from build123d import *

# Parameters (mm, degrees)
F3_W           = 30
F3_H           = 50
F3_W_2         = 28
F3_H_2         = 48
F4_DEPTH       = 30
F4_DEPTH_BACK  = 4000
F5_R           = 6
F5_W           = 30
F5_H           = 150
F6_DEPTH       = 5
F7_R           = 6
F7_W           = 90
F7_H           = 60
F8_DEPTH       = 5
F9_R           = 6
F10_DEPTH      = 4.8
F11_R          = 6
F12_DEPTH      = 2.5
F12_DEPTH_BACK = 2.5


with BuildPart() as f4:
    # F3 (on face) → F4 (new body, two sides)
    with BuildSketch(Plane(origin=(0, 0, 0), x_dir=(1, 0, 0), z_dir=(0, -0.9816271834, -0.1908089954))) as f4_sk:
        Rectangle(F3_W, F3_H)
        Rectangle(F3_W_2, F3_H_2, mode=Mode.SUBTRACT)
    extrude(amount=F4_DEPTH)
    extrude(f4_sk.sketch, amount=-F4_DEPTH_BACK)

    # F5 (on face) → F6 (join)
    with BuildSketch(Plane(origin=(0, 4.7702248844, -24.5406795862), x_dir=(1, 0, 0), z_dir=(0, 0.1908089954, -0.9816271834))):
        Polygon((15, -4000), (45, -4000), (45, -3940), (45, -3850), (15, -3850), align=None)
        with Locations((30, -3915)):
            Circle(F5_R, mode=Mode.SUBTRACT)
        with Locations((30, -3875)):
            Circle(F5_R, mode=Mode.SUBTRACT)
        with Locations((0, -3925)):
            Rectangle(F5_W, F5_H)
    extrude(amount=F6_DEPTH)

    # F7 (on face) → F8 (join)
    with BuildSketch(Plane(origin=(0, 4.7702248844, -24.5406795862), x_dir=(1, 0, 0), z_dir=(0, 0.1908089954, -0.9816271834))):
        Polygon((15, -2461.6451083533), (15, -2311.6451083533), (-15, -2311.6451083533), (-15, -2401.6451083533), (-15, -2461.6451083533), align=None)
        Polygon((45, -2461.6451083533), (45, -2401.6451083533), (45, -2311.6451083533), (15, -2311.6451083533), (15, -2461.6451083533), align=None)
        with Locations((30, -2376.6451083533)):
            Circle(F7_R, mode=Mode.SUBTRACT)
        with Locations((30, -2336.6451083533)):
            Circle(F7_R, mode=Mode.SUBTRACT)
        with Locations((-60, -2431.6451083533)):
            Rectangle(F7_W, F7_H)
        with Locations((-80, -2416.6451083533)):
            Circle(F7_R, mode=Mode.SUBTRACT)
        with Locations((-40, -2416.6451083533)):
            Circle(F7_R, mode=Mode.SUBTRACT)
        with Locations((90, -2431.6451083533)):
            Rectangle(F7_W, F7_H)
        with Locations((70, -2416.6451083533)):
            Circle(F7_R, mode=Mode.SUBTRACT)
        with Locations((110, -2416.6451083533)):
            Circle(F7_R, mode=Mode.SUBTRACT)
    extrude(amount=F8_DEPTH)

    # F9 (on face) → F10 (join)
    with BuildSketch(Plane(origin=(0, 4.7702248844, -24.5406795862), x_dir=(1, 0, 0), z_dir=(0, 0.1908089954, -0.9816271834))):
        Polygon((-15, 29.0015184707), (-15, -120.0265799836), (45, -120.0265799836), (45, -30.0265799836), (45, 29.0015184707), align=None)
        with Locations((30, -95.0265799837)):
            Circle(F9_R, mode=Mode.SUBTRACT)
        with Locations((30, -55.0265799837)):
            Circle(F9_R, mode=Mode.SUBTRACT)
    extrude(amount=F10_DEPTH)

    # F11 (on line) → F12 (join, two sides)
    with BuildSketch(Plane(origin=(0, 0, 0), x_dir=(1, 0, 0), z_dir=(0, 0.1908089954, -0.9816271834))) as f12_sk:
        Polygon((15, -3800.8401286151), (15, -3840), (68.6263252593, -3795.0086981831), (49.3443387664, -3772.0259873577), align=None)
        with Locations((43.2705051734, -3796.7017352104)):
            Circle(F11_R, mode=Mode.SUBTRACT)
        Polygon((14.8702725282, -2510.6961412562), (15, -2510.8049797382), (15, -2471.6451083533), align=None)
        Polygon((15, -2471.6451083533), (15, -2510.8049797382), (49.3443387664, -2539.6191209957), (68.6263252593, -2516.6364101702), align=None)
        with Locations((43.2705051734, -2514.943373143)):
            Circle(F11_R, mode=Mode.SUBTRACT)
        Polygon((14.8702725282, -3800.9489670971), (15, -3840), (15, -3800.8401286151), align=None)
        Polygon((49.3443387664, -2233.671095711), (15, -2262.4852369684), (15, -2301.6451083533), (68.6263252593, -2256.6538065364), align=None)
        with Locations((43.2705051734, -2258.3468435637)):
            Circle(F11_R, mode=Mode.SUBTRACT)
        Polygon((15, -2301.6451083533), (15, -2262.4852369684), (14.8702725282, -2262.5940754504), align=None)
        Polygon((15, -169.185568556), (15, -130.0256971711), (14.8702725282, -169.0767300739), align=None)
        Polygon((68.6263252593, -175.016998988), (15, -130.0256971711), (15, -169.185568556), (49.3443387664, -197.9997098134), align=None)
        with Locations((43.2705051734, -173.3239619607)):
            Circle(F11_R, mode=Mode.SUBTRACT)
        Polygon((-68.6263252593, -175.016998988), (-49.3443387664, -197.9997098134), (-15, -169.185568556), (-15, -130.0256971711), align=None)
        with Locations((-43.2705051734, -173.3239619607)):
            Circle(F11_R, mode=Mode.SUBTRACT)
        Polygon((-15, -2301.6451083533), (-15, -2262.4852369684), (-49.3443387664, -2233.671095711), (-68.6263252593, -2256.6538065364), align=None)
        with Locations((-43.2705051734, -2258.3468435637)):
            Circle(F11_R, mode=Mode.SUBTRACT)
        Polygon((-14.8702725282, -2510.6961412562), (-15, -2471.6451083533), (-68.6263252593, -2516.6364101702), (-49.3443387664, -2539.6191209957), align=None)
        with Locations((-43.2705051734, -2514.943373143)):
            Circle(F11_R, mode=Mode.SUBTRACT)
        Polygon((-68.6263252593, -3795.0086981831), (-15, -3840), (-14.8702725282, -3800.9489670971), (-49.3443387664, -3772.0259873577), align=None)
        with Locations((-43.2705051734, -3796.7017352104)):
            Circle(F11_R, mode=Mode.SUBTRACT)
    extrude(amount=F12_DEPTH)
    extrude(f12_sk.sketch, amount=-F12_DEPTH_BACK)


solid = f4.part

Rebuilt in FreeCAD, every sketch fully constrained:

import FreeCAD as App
import Part
import Sketcher
from FreeCAD import Vector


def add_polygon(sketch, points):
    """Adds a closed chain of lines whose ends are joined by coincident constraints."""
    first, n = sketch.GeometryCount, len(points)
    for a, b in zip(points, points[1:] + points[:1]):
        sketch.addGeometry(Part.LineSegment(App.Vector(*a, 0), App.Vector(*b, 0)), False)
    for i in range(n):
        sketch.addConstraint(Sketcher.Constraint("Coincident", first + i, 2, first + (i + 1) % n, 1))

doc = App.newDocument("Part")
body = doc.addObject("PartDesign::Body", "Body")

# Sketch on an angled plane
sketch1 = body.newObject("Sketcher::SketchObject", "Sketch")
sketch1.Placement = App.Placement(Vector(0, 0, 0), App.Rotation(Vector(1, 0, 0), Vector(0, -0.190808995, 0.981627183), Vector(0, -0.981627183, -0.190808995), "ZXY"))
add_polygon(sketch1, [(-15, 25), (-15, -25), (15, -25), (15, 25)])  # lines 0-3
add_polygon(sketch1, [(14, -24), (-14, -24), (-14, 24), (14, 24)])  # lines 4-7
sketch1.addConstraint([
    Sketcher.Constraint("Vertical", 0),
    Sketcher.Constraint("Horizontal", 1),
    Sketcher.Constraint("Vertical", 2),
    Sketcher.Constraint("Horizontal", 3),
    Sketcher.Constraint("Horizontal", 4),
    Sketcher.Constraint("Vertical", 5),
    Sketcher.Constraint("Horizontal", 6),
    Sketcher.Constraint("Vertical", 7),
    Sketcher.Constraint("Symmetric", 0, 2, 2, 2, -1, 1),
    Sketcher.Constraint("Symmetric", 4, 2, 6, 2, -1, 1),
    Sketcher.Constraint("DistanceX", 1, 1, 1, 2, 30.0),
    Sketcher.Constraint("DistanceX", 4, 2, 4, 1, 28.0),
    Sketcher.Constraint("DistanceY", 0, 2, 0, 1, 50.0),
    Sketcher.Constraint("DistanceY", 5, 1, 5, 2, 48.0),
])
pad1 = body.newObject("PartDesign::Pad", "Pad")
pad1.Profile = sketch1
pad1.Type = "TwoLengths"
pad1.Length = 30
pad1.Length2 = 4000

# Sketch on an angled plane
sketch2 = body.newObject("Sketcher::SketchObject", "Sketch001")
sketch2.Placement = App.Placement(Vector(0, 4.770225, -24.54068), App.Rotation(Vector(1, 0, 0), Vector(0, -0.981627183, -0.190808995), Vector(0, 0.190808995, -0.981627183), "ZXY"))
add_polygon(sketch2, [(45, -4000), (45, -3850), (-15, -3850), (-15, -4000)])  # lines 0-3
sketch2.addGeometry(Part.Circle(Vector(30, -3915, 0), Vector(0, 0, 1), 6), False)  # 4
sketch2.addGeometry(Part.Circle(Vector(30, -3875, 0), Vector(0, 0, 1), 6), False)  # 5
sketch2.addConstraint([
    Sketcher.Constraint("Vertical", 0),
    Sketcher.Constraint("Horizontal", 1),
    Sketcher.Constraint("Vertical", 2),
    Sketcher.Constraint("Horizontal", 3),
    Sketcher.Constraint("Equal", 4, 5),
    Sketcher.Constraint("Vertical", 4, 3, 5, 3),
    Sketcher.Constraint("Diameter", 4, 12.0),
    Sketcher.Constraint("DistanceX", 1, 2, 1, 1, 60.0),
    Sketcher.Constraint("DistanceY", 0, 1, 0, 2, 150.0),
    Sketcher.Constraint("DistanceX", -1, 1, 4, 3, 30.0),
    Sketcher.Constraint("DistanceX", -1, 1, 0, 2, 45.0),
    Sketcher.Constraint("DistanceY", 4, 3, 5, 3, 40.0),
    Sketcher.Constraint("DistanceY", 5, 3, 0, 2, 25.0),
    Sketcher.Constraint("DistanceY", 4, 3, -1, 1, 3914.999996),
])
pad2 = body.newObject("PartDesign::Pad", "Pad001")
pad2.Profile = sketch2
pad2.Length = 5

# Sketch on an angled plane
sketch3 = body.newObject("Sketcher::SketchObject", "Sketch002")
sketch3.Placement = App.Placement(Vector(0, 4.770225, -24.54068), App.Rotation(Vector(1, 0, 0), Vector(0, -0.981627183, -0.190808995), Vector(0, 0.190808995, -0.981627183), "ZXY"))
add_polygon(sketch3, [(-15, -2312), (-15, -2402), (-105, -2402), (-105, -2462), (135, -2462), (135, -2402), (45, -2402), (45, -2312)])  # lines 0-7
sketch3.addGeometry(Part.Circle(Vector(-80, -2417, 0), Vector(0, 0, 1), 6), False)  # 8
sketch3.addGeometry(Part.Circle(Vector(-40, -2417, 0), Vector(0, 0, 1), 6), False)  # 9
sketch3.addGeometry(Part.Circle(Vector(70, -2417, 0), Vector(0, 0, 1), 6), False)  # 10
sketch3.addGeometry(Part.Circle(Vector(110, -2417, 0), Vector(0, 0, 1), 6), False)  # 11
sketch3.addGeometry(Part.Circle(Vector(30, -2377, 0), Vector(0, 0, 1), 6), False)  # 12
sketch3.addGeometry(Part.Circle(Vector(30, -2337, 0), Vector(0, 0, 1), 6), False)  # 13
sketch3.addConstraint([
    Sketcher.Constraint("Vertical", 0),
    Sketcher.Constraint("Horizontal", 1),
    Sketcher.Constraint("Vertical", 2),
    Sketcher.Constraint("Horizontal", 3),
    Sketcher.Constraint("Vertical", 4),
    Sketcher.Constraint("Horizontal", 5),
    Sketcher.Constraint("Vertical", 6),
    Sketcher.Constraint("Horizontal", 7),
    Sketcher.Constraint("Equal", 8, 9),
    Sketcher.Constraint("Equal", 9, 10),
    Sketcher.Constraint("Equal", 10, 11),
    Sketcher.Constraint("Equal", 11, 12),
    Sketcher.Constraint("Equal", 12, 13),
    Sketcher.Constraint("Horizontal", 8, 3, 9, 3),
    Sketcher.Constraint("Horizontal", 9, 3, 10, 3),
    Sketcher.Constraint("Horizontal", 10, 3, 11, 3),
    Sketcher.Constraint("Horizontal", 1, 2, 4, 2),
    Sketcher.Constraint("Vertical", 12, 3, 13, 3),
    Sketcher.Constraint("Equal", 1, 5),
    Sketcher.Constraint("Equal", 5, 0),
    Sketcher.Constraint("Equal", 7, 2),
    Sketcher.Constraint("Diameter", 8, 12.0),
    Sketcher.Constraint("DistanceX", 1, 2, 1, 1, 90.0),
    Sketcher.Constraint("DistanceX", 3, 1, 3, 2, 240.0),
    Sketcher.Constraint("DistanceX", 8, 3, -1, 1, 80.0),
    Sketcher.Constraint("DistanceX", 9, 3, -1, 1, 40.0),
    Sketcher.Constraint("DistanceX", -1, 1, 10, 3, 70.0),
    Sketcher.Constraint("DistanceX", -1, 1, 11, 3, 110.0),
    Sketcher.Constraint("DistanceX", -1, 1, 12, 3, 30.0),
    Sketcher.Constraint("DistanceX", 0, 2, -1, 1, 15.0),
    Sketcher.Constraint("DistanceY", 10, 3, 12, 3, 40.0),
    Sketcher.Constraint("DistanceY", 12, 3, 13, 3, 40.0),
    Sketcher.Constraint("DistanceY", 9, 3, 0, 2, 15.0),
    Sketcher.Constraint("DistanceY", 8, 3, -1, 1, 2416.645106),
])
pad3 = body.newObject("PartDesign::Pad", "Pad002")
pad3.Profile = sketch3
pad3.Length = 5

# Sketch on an angled plane
sketch4 = body.newObject("Sketcher::SketchObject", "Sketch003")
sketch4.Placement = App.Placement(Vector(0, 4.770225, -24.54068), App.Rotation(Vector(1, 0, 0), Vector(0, -0.981627183, -0.190808995), Vector(0, 0.190808995, -0.981627183), "ZXY"))
add_polygon(sketch4, [(-15, 29), (-15, -120), (45, -120), (45, 29)])  # lines 0-3
sketch4.addGeometry(Part.Circle(Vector(30, -95, 0), Vector(0, 0, 1), 6), False)  # 4
sketch4.addGeometry(Part.Circle(Vector(30, -55, 0), Vector(0, 0, 1), 6), False)  # 5
sketch4.addConstraint([
    Sketcher.Constraint("Vertical", 0),
    Sketcher.Constraint("Horizontal", 1),
    Sketcher.Constraint("Vertical", 2),
    Sketcher.Constraint("Horizontal", 3),
    Sketcher.Constraint("Equal", 4, 5),
    Sketcher.Constraint("Vertical", 4, 3, 5, 3),
    Sketcher.Constraint("Diameter", 4, 12.0),
    Sketcher.Constraint("DistanceX", 1, 1, 1, 2, 60.0),
    Sketcher.Constraint("DistanceX", -1, 1, 4, 3, 30.0),
    Sketcher.Constraint("DistanceX", 0, 2, -1, 1, 15.0),
    Sketcher.Constraint("DistanceY", 4, 3, 5, 3, 40.0),
    Sketcher.Constraint("DistanceY", 0, 2, 4, 3, 25.0),
    Sketcher.Constraint("DistanceY", 0, 2, 0, 1, 149.028098),
    Sketcher.Constraint("DistanceY", 4, 3, -1, 1, 95.02658),
])
pad4 = body.newObject("PartDesign::Pad", "Pad003")
pad4.Profile = sketch4
pad4.Length = 4.8

# Sketch on an angled plane
sketch5 = body.newObject("Sketcher::SketchObject", "Sketch004")
sketch5.Placement = App.Placement(Vector(0, 0, 0), App.Rotation(Vector(1, 0, 0), Vector(0, -0.981627183, -0.190808995), Vector(0, 0.190808995, -0.981627183), "ZXY"))
add_polygon(sketch5, [(49.34, -3772.03), (15, -3800.84), (14.87, -3800.95), (15, -3840), (68.63, -3795.01)])  # lines 0-4
sketch5.addGeometry(Part.Circle(Vector(43.27, -3796.7, 0), Vector(0, 0, 1), 6), False)  # 5
add_polygon(sketch5, [(14.87, -2510.7), (15, -2510.8), (49.34, -2539.62), (68.63, -2516.64), (15, -2471.65)])  # lines 6-10
sketch5.addGeometry(Part.Circle(Vector(43.27, -2514.94, 0), Vector(0, 0, 1), 6), False)  # 11
add_polygon(sketch5, [(49.34, -2233.67), (15, -2262.49), (14.87, -2262.59), (15, -2301.65), (68.63, -2256.65)])  # lines 12-16
sketch5.addGeometry(Part.Circle(Vector(43.27, -2258.35, 0), Vector(0, 0, 1), 6), False)  # 17
add_polygon(sketch5, [(15, -130.03), (14.87, -169.08), (15, -169.19), (49.34, -198), (68.63, -175.02)])  # lines 18-22
sketch5.addGeometry(Part.Circle(Vector(43.27, -173.32, 0), Vector(0, 0, 1), 6), False)  # 23
add_polygon(sketch5, [(-68.63, -175.02), (-49.34, -198), (-15, -169.19), (-15, -130.03)])  # lines 24-27
sketch5.addGeometry(Part.Circle(Vector(-43.27, -173.32, 0), Vector(0, 0, 1), 6), False)  # 28
add_polygon(sketch5, [(-15, -2301.65), (-15, -2262.49), (-49.34, -2233.67), (-68.63, -2256.65)])  # lines 29-32
sketch5.addGeometry(Part.Circle(Vector(-43.27, -2258.35, 0), Vector(0, 0, 1), 6), False)  # 33
add_polygon(sketch5, [(-14.87, -2510.7), (-15, -2471.65), (-68.63, -2516.64), (-49.34, -2539.62)])  # lines 34-37
sketch5.addGeometry(Part.Circle(Vector(-43.27, -2514.94, 0), Vector(0, 0, 1), 6), False)  # 38
add_polygon(sketch5, [(-68.63, -3795.01), (-15, -3840), (-14.87, -3800.95), (-49.34, -3772.03)])  # lines 39-42
sketch5.addGeometry(Part.Circle(Vector(-43.27, -3796.7, 0), Vector(0, 0, 1), 6), False)  # 43
sketch5.addConstraint([
    Sketcher.Constraint("Vertical", 26),
    Sketcher.Constraint("Vertical", 29),
    Sketcher.Constraint("Equal", 5, 11),
    Sketcher.Constraint("Equal", 11, 17),
    Sketcher.Constraint("Equal", 17, 23),
    Sketcher.Constraint("Equal", 23, 28),
    Sketcher.Constraint("Equal", 28, 33),
    Sketcher.Constraint("Equal", 33, 38),
    Sketcher.Constraint("Equal", 38, 43),
    Sketcher.Constraint("Symmetric", 23, 3, 28, 3, -2),
    Sketcher.Constraint("Symmetric", 17, 3, 33, 3, -2),
    Sketcher.Constraint("Symmetric", 11, 3, 38, 3, -2),
    Sketcher.Constraint("Symmetric", 5, 3, 43, 3, -2),
    Sketcher.Constraint("Symmetric", 20, 2, 24, 2, -2),
    Sketcher.Constraint("Symmetric", 19, 2, 25, 2, -2),
    Sketcher.Constraint("Symmetric", 22, 2, 26, 2, -2),
    Sketcher.Constraint("Symmetric", 21, 2, 27, 2, -2),
    Sketcher.Constraint("Symmetric", 12, 2, 29, 2, -2),
    Sketcher.Constraint("Symmetric", 16, 2, 30, 2, -2),
    Sketcher.Constraint("Symmetric", 15, 2, 31, 2, -2),
    Sketcher.Constraint("Symmetric", 14, 2, 32, 2, -2),
    Sketcher.Constraint("Symmetric", 9, 2, 34, 2, -2),
    Sketcher.Constraint("Symmetric", 8, 2, 35, 2, -2),
    Sketcher.Constraint("Symmetric", 7, 2, 36, 2, -2),
    Sketcher.Constraint("Symmetric", 10, 2, 37, 2, -2),
    Sketcher.Constraint("Symmetric", 2, 2, 39, 2, -2),
    Sketcher.Constraint("Symmetric", 1, 2, 40, 2, -2),
    Sketcher.Constraint("Symmetric", 4, 2, 41, 2, -2),
    Sketcher.Constraint("Symmetric", 3, 2, 42, 2, -2),
    Sketcher.Constraint("Parallel", 0, 1),
    Sketcher.Constraint("Parallel", 1, 3),
    Sketcher.Constraint("Perpendicular", 3, 4),
    Sketcher.Constraint("Parallel", 6, 7),
    Sketcher.Constraint("Perpendicular", 7, 8),
    Sketcher.Constraint("Perpendicular", 8, 9),
    Sketcher.Constraint("Perpendicular", 4, 12),
    Sketcher.Constraint("Parallel", 12, 13),
    Sketcher.Constraint("Parallel", 2, 14),
    Sketcher.Constraint("Parallel", 12, 15),
    Sketcher.Constraint("Perpendicular", 15, 16),
    Sketcher.Constraint("Parallel", 10, 18),
    Sketcher.Constraint("Parallel", 9, 19),
    Sketcher.Constraint("Parallel", 9, 20),
    Sketcher.Constraint("Perpendicular", 20, 21),
    Sketcher.Constraint("Perpendicular", 21, 22),
    Sketcher.Constraint("Parallel", 16, 24),
    Sketcher.Constraint("Parallel", 14, 34),
    Sketcher.Constraint("Vertical", 5, 3, 11, 3),
    Sketcher.Constraint("Vertical", 11, 3, 17, 3),
    Sketcher.Constraint("Vertical", 17, 3, 23, 3),
    Sketcher.Constraint("Vertical", 0, 2, 2, 2),
    Sketcher.Constraint("Vertical", 2, 2, 6, 2),
    Sketcher.Constraint("Vertical", 4, 2, 7, 2),
    Sketcher.Constraint("Vertical", 3, 2, 8, 2),
    Sketcher.Constraint("Vertical", 6, 2, 9, 2),
    Sketcher.Constraint("Vertical", 9, 2, 12, 2),
    Sketcher.Constraint("Vertical", 8, 2, 15, 2),
    Sketcher.Constraint("Vertical", 7, 2, 16, 2),
    Sketcher.Constraint("Vertical", 13, 2, 18, 2),
    Sketcher.Constraint("Vertical", 16, 2, 20, 2),
    Sketcher.Constraint("Vertical", 15, 2, 21, 2),
    Sketcher.Constraint("Diameter", 5, 12.0),
    Sketcher.Constraint("Distance", 3, 70.0),
    Sketcher.Constraint("Distance", 4, 30.0),
    Sketcher.Constraint("Distance", 37, 45.0),
    Sketcher.Constraint("DistanceX", -1, 1, 0, 2, 15.0),
    Sketcher.Constraint("DistanceY", 9, 2, 14, 2, 170.0),
    Sketcher.Constraint("DistanceY", 21, 2, -1, 1, 175.016999),
    Sketcher.Constraint("DistanceY", 26, 1, 26, 2, 39.159871),
    Sketcher.Constraint("DistanceY", 5, 3, -1, 1, 3796.701731),
    Sketcher.Constraint("DistanceY", 11, 3, -1, 1, 2514.943371),
    Sketcher.Constraint("DistanceY", 17, 3, -1, 1, 2258.346841),
    Sketcher.Constraint("DistanceY", 23, 3, -1, 1, 173.323962),
    Sketcher.Constraint("DistanceY", 7, 2, -1, 1, 2539.619118),
    Sketcher.Constraint("DistanceX", 28, 3, 23, 3, 86.54101),
    Sketcher.Constraint("DistanceY", 1, 2, 5, 3, 4.247232),
])
pad5 = body.newObject("PartDesign::Pad", "Pad004")
pad5.Profile = sketch5
pad5.Type = "TwoLengths"
pad5.Length = 2.5
pad5.Length2 = 2.5

doc.recompute()
